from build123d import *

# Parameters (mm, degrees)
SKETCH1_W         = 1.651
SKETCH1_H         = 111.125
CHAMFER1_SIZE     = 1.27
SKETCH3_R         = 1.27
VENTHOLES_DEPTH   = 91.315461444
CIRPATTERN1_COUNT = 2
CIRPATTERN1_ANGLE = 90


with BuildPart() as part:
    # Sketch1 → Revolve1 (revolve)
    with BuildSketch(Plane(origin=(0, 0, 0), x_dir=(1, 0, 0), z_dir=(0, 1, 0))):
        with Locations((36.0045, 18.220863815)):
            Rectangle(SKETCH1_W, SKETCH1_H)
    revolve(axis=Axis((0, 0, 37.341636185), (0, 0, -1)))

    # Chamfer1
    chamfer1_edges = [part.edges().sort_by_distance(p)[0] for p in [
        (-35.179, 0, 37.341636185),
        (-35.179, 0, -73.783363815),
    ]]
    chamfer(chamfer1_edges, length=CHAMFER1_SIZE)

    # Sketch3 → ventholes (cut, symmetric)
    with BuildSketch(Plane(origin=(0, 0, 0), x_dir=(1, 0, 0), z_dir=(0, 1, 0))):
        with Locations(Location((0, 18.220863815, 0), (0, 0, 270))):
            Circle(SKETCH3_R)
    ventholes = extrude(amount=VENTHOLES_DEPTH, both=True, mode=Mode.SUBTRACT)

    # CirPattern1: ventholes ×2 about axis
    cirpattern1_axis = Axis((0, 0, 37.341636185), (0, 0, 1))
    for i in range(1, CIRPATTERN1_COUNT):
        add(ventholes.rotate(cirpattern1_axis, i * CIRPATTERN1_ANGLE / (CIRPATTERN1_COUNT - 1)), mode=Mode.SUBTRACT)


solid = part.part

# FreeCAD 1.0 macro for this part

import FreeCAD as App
import Part
import Sketcher
from FreeCAD import Vector
Q = App.Units.Quantity


def edges_at(feature, points):
    """Names of the edges that pass closest to the given points."""
    edges = feature.Shape.Edges
    near = lambda p: min(range(len(edges)), key=lambda i: edges[i].distToShape(Part.Vertex(*p))[0])
    return sorted({f"Edge{near(p) + 1}" for p in points})


def add_polygon(sketch, points):
    """Adds a closed chain of lines whose ends are joined by coincident constraints."""
    first, n = sketch.GeometryCount, len(points)
    for a, b in zip(points, points[1:] + points[:1]):
        sketch.addGeometry(Part.LineSegment(App.Vector(*a, 0), App.Vector(*b, 0)), False)
    for i in range(n):
        sketch.addConstraint(Sketcher.Constraint("Coincident", first + i, 2, first + (i + 1) % n, 1))

doc = App.newDocument("Part")
body = doc.addObject("PartDesign::Body", "Body")

# Sketch on XZ plane
sketch1 = doc.addObject("Sketcher::SketchObject", "Sketch")
body.addObject(sketch1)
sketch1.AttachmentSupport = (doc.XZ_Plane, [""])
sketch1.MapMode = "FlatFace"
add_polygon(sketch1, [(35.2, -73.8), (35.2, 37.3), (36.8, 37.3), (36.8, -73.8)])  # lines 0-3
sketch1.addConstraint(Sketcher.Constraint("Vertical", 0))
sketch1.addConstraint(Sketcher.Constraint("Horizontal", 1))
sketch1.addConstraint(Sketcher.Constraint("Vertical", 2))
sketch1.addConstraint(Sketcher.Constraint("Horizontal", 3))
sketch1.addConstraint(Sketcher.Constraint("DistanceX", 1, 1, 1, 2, Q("0.065 in")))
sketch1.addConstraint(Sketcher.Constraint("DistanceY", 0, 1, 0, 2, Q("4.375 in")))
sketch1.addConstraint(Sketcher.Constraint("DistanceX", -1, 1, 1, 2, Q("1.45 in")))
sketch1.addConstraint(Sketcher.Constraint("DistanceY", -1, 1, 0, 2, Q("37.341636 mm")))
revolution = doc.addObject("PartDesign::Revolution", "Revolution")
body.addObject(revolution)
revolution.Profile = sketch1
revolution.ReferenceAxis = (sketch1, ["V_Axis"])
revolution.Angle = 360
doc.recompute()

chamfer = doc.addObject("PartDesign::Chamfer", "Chamfer")
body.addObject(chamfer)
chamfer.Base = (revolution, edges_at(revolution, [(-35.179, 0, 37.342), (-35.179, 0, -73.783)]))
chamfer.Size = Q("0.05 in")

# Sketch on XZ plane
sketch2 = doc.addObject("Sketcher::SketchObject", "Sketch001")
body.addObject(sketch2)
sketch2.AttachmentSupport = (doc.XZ_Plane, [""])
sketch2.MapMode = "FlatFace"
sketch2.addGeometry(Part.Circle(Vector(0, -18.2, 0), Vector(0, 0, 1), 1.3), False)
sketch2.addConstraint(Sketcher.Constraint("PointOnObject", 0, 3, -2))
sketch2.addConstraint(Sketcher.Constraint("Diameter", 0, Q("0.1 in")))
sketch2.addConstraint(Sketcher.Constraint("DistanceY", 0, 3, -1, 1, Q("18.220864 mm")))
pocket1 = doc.addObject("PartDesign::Pocket", "Pocket")
body.addObject(pocket1)
pocket1.Profile = sketch2
pocket1.Length = 182.630923
pocket1.Midplane = True
doc.recompute()

polarpattern = doc.addObject("PartDesign::PolarPattern", "PolarPattern")
body.addObject(polarpattern)
polarpattern.Originals = [pocket1]
polarpattern.Axis = (doc.Z_Axis, [""])
polarpattern.Angle = 90
polarpattern.Occurrences = 2
body.Tip = polarpattern

doc.recompute()
